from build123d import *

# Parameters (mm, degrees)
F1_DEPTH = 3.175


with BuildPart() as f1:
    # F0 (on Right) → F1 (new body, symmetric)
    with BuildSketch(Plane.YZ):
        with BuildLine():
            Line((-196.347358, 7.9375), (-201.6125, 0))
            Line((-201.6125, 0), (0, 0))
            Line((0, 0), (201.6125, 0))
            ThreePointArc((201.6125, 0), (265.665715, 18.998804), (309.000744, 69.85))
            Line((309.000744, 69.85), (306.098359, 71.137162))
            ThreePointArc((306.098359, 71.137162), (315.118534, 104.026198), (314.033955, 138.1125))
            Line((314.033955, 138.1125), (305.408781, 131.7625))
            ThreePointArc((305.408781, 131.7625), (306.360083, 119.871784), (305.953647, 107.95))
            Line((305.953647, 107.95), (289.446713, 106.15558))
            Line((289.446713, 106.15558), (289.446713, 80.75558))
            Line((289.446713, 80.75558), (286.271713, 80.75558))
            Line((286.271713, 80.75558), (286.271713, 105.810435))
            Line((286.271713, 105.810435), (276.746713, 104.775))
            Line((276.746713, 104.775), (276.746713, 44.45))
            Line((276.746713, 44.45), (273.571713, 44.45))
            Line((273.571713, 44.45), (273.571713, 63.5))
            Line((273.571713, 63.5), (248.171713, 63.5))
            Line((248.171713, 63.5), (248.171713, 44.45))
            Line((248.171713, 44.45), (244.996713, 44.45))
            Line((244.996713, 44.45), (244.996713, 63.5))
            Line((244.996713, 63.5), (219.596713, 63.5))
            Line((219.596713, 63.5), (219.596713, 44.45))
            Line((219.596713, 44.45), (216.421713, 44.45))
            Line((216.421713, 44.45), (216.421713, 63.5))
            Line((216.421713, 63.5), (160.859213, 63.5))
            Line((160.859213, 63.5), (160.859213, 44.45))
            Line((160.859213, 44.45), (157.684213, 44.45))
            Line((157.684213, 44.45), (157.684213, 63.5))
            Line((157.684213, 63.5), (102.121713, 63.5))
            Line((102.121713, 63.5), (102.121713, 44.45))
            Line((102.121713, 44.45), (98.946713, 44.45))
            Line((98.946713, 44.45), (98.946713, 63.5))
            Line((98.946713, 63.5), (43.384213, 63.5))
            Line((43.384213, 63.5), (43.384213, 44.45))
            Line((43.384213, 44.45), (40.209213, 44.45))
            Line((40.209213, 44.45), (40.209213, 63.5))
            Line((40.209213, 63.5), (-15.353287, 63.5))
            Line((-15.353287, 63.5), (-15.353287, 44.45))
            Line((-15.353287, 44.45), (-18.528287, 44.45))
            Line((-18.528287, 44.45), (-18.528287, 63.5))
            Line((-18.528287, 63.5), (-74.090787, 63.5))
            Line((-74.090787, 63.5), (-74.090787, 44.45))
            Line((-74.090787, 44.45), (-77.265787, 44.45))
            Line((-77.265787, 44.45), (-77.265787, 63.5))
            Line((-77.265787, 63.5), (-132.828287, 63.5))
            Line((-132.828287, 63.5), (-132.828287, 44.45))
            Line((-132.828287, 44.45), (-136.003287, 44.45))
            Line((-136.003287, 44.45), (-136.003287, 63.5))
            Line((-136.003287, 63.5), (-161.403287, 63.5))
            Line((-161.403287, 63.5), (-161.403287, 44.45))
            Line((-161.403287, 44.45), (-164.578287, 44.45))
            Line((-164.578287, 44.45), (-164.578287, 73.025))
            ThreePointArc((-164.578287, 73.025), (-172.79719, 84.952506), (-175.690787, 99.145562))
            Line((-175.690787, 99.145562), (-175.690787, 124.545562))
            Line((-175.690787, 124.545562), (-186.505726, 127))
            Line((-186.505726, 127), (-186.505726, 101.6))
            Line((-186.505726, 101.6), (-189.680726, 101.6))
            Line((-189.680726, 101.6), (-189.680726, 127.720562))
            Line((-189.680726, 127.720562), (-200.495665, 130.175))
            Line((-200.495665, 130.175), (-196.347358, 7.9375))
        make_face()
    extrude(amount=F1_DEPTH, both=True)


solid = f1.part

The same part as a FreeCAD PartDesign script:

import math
import FreeCAD as App
import Part
import Sketcher

V = App.Vector
Q = App.Units.Quantity

doc = App.newDocument("Part")
body = doc.addObject("PartDesign::Body", "Body")

# Sketch on YZ plane
sketch1 = body.newObject("Sketcher::SketchObject", "Sketch")
sketch1.AttachmentSupport = (doc.getObject("YZ_Plane"), [""])
sketch1.MapMode = "FlatFace"
sketch1.addGeometry([
    Part.LineSegment(V(-196.3, 7.9, 0), V(-201.6, 0, 0)),  # 0
    Part.LineSegment(V(-201.6, 0, 0), V(201.6, 0, 0)),  # 1
    Part.ArcOfCircle(Part.Circle(V(201.6, 117.5, 0), V(0, 0, 1), 117.5), math.radians(-90), math.radians(-24)),  # 2
    Part.LineSegment(V(309, 69.8, 0), V(306.1, 71.1, 0)),  # 3
    Part.ArcOfCircle(Part.Circle(V(201.6, 117.5, 0), V(0, 0, 1), 114.3), math.radians(-24), math.radians(10)),  # 4
    Part.LineSegment(V(314, 138.1, 0), V(305.4, 131.8, 0)),  # 5
    Part.ArcOfCircle(Part.Circle(V(201.6, 117.5, 0), V(0, 0, 1), 104.8), math.radians(-5.22), math.radians(7.84)),  # 6
    Part.LineSegment(V(306, 108, 0), V(289.4, 106.2, 0)),  # 7
    Part.LineSegment(V(289.4, 106.2, 0), V(289.4, 80.8, 0)),  # 8
    Part.LineSegment(V(289.4, 80.8, 0), V(286.3, 80.8, 0)),  # 9
    Part.LineSegment(V(286.3, 80.8, 0), V(286.3, 105.8, 0)),  # 10
    Part.LineSegment(V(286.3, 105.8, 0), V(276.7, 104.8, 0)),  # 11
    Part.LineSegment(V(276.7, 104.8, 0), V(276.7, 44.5, 0)),  # 12
    Part.LineSegment(V(276.7, 44.5, 0), V(273.6, 44.5, 0)),  # 13
    Part.LineSegment(V(273.6, 44.5, 0), V(273.6, 63.5, 0)),  # 14
    Part.LineSegment(V(273.6, 63.5, 0), V(248.2, 63.5, 0)),  # 15
    Part.LineSegment(V(248.2, 63.5, 0), V(248.2, 44.5, 0)),  # 16
    Part.LineSegment(V(248.2, 44.5, 0), V(245, 44.5, 0)),  # 17
    Part.LineSegment(V(245, 44.5, 0), V(245, 63.5, 0)),  # 18
    Part.LineSegment(V(245, 63.5, 0), V(219.6, 63.5, 0)),  # 19
    Part.LineSegment(V(219.6, 63.5, 0), V(219.6, 44.5, 0)),  # 20
    Part.LineSegment(V(219.6, 44.5, 0), V(216.4, 44.5, 0)),  # 21
    Part.LineSegment(V(216.4, 44.5, 0), V(216.4, 63.5, 0)),  # 22
    Part.LineSegment(V(216.4, 63.5, 0), V(160.9, 63.5, 0)),  # 23
    Part.LineSegment(V(160.9, 63.5, 0), V(160.9, 44.5, 0)),  # 24
    Part.LineSegment(V(160.9, 44.5, 0), V(157.7, 44.5, 0)),  # 25
    Part.LineSegment(V(157.7, 44.5, 0), V(157.7, 63.5, 0)),  # 26
    Part.LineSegment(V(157.7, 63.5, 0), V(102.1, 63.5, 0)),  # 27
    Part.LineSegment(V(102.1, 63.5, 0), V(102.1, 44.5, 0)),  # 28
    Part.LineSegment(V(102.1, 44.5, 0), V(98.9, 44.5, 0)),  # 29
    Part.LineSegment(V(98.9, 44.5, 0), V(98.9, 63.5, 0)),  # 30
    Part.LineSegment(V(98.9, 63.5, 0), V(43.4, 63.5, 0)),  # 31
    Part.LineSegment(V(43.4, 63.5, 0), V(43.4, 44.5, 0)),  # 32
    Part.LineSegment(V(43.4, 44.5, 0), V(40.2, 44.5, 0)),  # 33
    Part.LineSegment(V(40.2, 44.5, 0), V(40.2, 63.5, 0)),  # 34
    Part.LineSegment(V(40.2, 63.5, 0), V(-15.4, 63.5, 0)),  # 35
    Part.LineSegment(V(-15.4, 63.5, 0), V(-15.4, 44.5, 0)),  # 36
    Part.LineSegment(V(-15.4, 44.5, 0), V(-18.5, 44.5, 0)),  # 37
    Part.LineSegment(V(-18.5, 44.5, 0), V(-18.5, 63.5, 0)),  # 38
    Part.LineSegment(V(-18.5, 63.5, 0), V(-74.1, 63.5, 0)),  # 39
    Part.LineSegment(V(-74.1, 63.5, 0), V(-74.1, 44.5, 0)),  # 40
    Part.LineSegment(V(-74.1, 44.5, 0), V(-77.3, 44.5, 0)),  # 41
    Part.LineSegment(V(-77.3, 44.5, 0), V(-77.3, 63.5, 0)),  # 42
    Part.LineSegment(V(-77.3, 63.5, 0), V(-132.8, 63.5, 0)),  # 43
    Part.LineSegment(V(-132.8, 63.5, 0), V(-132.8, 44.5, 0)),  # 44
    Part.LineSegment(V(-132.8, 44.5, 0), V(-136, 44.5, 0)),  # 45
    Part.LineSegment(V(-136, 44.5, 0), V(-136, 63.5, 0)),  # 46
    Part.LineSegment(V(-136, 63.5, 0), V(-161.4, 63.5, 0)),  # 47
    Part.LineSegment(V(-161.4, 63.5, 0), V(-161.4, 44.5, 0)),  # 48
    Part.LineSegment(V(-161.4, 44.5, 0), V(-164.6, 44.5, 0)),  # 49
    Part.LineSegment(V(-164.6, 44.5, 0), V(-164.6, 73, 0)),  # 50
    Part.ArcOfCircle(Part.Circle(V(-139.4, 99.1, 0), V(0, 0, 1), 36.3), math.radians(-180), math.radians(-134)),  # 51
    Part.LineSegment(V(-175.7, 99.1, 0), V(-175.7, 124.5, 0)),  # 52
    Part.LineSegment(V(-175.7, 124.5, 0), V(-186.5, 127, 0)),  # 53
    Part.LineSegment(V(-186.5, 127, 0), V(-186.5, 101.6, 0)),  # 54
    Part.LineSegment(V(-186.5, 101.6, 0), V(-189.7, 101.6, 0)),  # 55
    Part.LineSegment(V(-189.7, 101.6, 0), V(-189.7, 127.7, 0)),  # 56
    Part.LineSegment(V(-189.7, 127.7, 0), V(-200.5, 130.2, 0)),  # 57
    Part.LineSegment(V(-200.5, 130.2, 0), V(-196.3, 7.9, 0)),  # 58
], False)
sketch1.addConstraint([
    Sketcher.Constraint("Coincident", 0, 2, 1, 1),
    Sketcher.Constraint("Tangent", 1, 2, 2, 1),
    Sketcher.Constraint("Coincident", 2, 2, 3, 1),
    Sketcher.Constraint("Coincident", 3, 2, 4, 1),
    Sketcher.Constraint("Coincident", 4, 2, 5, 1),
    Sketcher.Constraint("Coincident", 5, 2, 6, 2),
    Sketcher.Constraint("Coincident", 6, 1, 7, 1),
    Sketcher.Constraint("Coincident", 7, 2, 8, 1),
    Sketcher.Constraint("Coincident", 8, 2, 9, 1),
    Sketcher.Constraint("Coincident", 9, 2, 10, 1),
    Sketcher.Constraint("Coincident", 10, 2, 11, 1),
    Sketcher.Constraint("Coincident", 11, 2, 12, 1),
    Sketcher.Constraint("Coincident", 12, 2, 13, 1),
    Sketcher.Constraint("Coincident", 13, 2, 14, 1),
    Sketcher.Constraint("Coincident", 14, 2, 15, 1),
    Sketcher.Constraint("Coincident", 15, 2, 16, 1),
    Sketcher.Constraint("Coincident", 16, 2, 17, 1),
    Sketcher.Constraint("Coincident", 17, 2, 18, 1),
    Sketcher.Constraint("Coincident", 18, 2, 19, 1),
    Sketcher.Constraint("Coincident", 19, 2, 20, 1),
    Sketcher.Constraint("Coincident", 20, 2, 21, 1),
    Sketcher.Constraint("Coincident", 21, 2, 22, 1),
    Sketcher.Constraint("Coincident", 22, 2, 23, 1),
    Sketcher.Constraint("Coincident", 23, 2, 24, 1),
    Sketcher.Constraint("Coincident", 24, 2, 25, 1),
    Sketcher.Constraint("Coincident", 25, 2, 26, 1),
    Sketcher.Constraint("Coincident", 26, 2, 27, 1),
    Sketcher.Constraint("Coincident", 27, 2, 28, 1),
    Sketcher.Constraint("Coincident", 28, 2, 29, 1),
    Sketcher.Constraint("Coincident", 29, 2, 30, 1),
    Sketcher.Constraint("Coincident", 30, 2, 31, 1),
    Sketcher.Constraint("Coincident", 31, 2, 32, 1),
    Sketcher.Constraint("Coincident", 32, 2, 33, 1),
    Sketcher.Constraint("Coincident", 33, 2, 34, 1),
    Sketcher.Constraint("Coincident", 34, 2, 35, 1),
    Sketcher.Constraint("Coincident", 35, 2, 36, 1),
    Sketcher.Constraint("Coincident", 36, 2, 37, 1),
    Sketcher.Constraint("Coincident", 37, 2, 38, 1),
    Sketcher.Constraint("Coincident", 38, 2, 39, 1),
    Sketcher.Constraint("Coincident", 39, 2, 40, 1),
    Sketcher.Constraint("Coincident", 40, 2, 41, 1),
    Sketcher.Constraint("Coincident", 41, 2, 42, 1),
    Sketcher.Constraint("Coincident", 42, 2, 43, 1),
    Sketcher.Constraint("Coincident", 43, 2, 44, 1),
    Sketcher.Constraint("Coincident", 44, 2, 45, 1),
    Sketcher.Constraint("Coincident", 45, 2, 46, 1),
    Sketcher.Constraint("Coincident", 46, 2, 47, 1),
    Sketcher.Constraint("Coincident", 47, 2, 48, 1),
    Sketcher.Constraint("Coincident", 48, 2, 49, 1),
    Sketcher.Constraint("Coincident", 49, 2, 50, 1),
    Sketcher.Constraint("Coincident", 50, 2, 51, 2),
    Sketcher.Constraint("Tangent", 51, 1, 52, 1),
    Sketcher.Constraint("Coincident", 52, 2, 53, 1),
    Sketcher.Constraint("Coincident", 53, 2, 54, 1),
    Sketcher.Constraint("Coincident", 54, 2, 55, 1),
    Sketcher.Constraint("Coincident", 55, 2, 56, 1),
    Sketcher.Constraint("Coincident", 56, 2, 57, 1),
    Sketcher.Constraint("Coincident", 57, 2, 58, 1),
    Sketcher.Constraint("Coincident", 58, 2, 0, 1),
    Sketcher.Constraint("Horizontal", 1),
    Sketcher.Constraint("Vertical", 8),
    Sketcher.Constraint("Horizontal", 9),
    Sketcher.Constraint("Vertical", 10),
    Sketcher.Constraint("Vertical", 12),
    Sketcher.Constraint("Horizontal", 13),
    Sketcher.Constraint("Vertical", 14),
    Sketcher.Constraint("Horizontal", 15),
    Sketcher.Constraint("Vertical", 16),
    Sketcher.Constraint("Horizontal", 17),
    Sketcher.Constraint("Vertical", 18),
    Sketcher.Constraint("Horizontal", 19),
    Sketcher.Constraint("Vertical", 20),
    Sketcher.Constraint("Horizontal", 21),
    Sketcher.Constraint("Vertical", 22),
    Sketcher.Constraint("Horizontal", 23),
    Sketcher.Constraint("Vertical", 24),
    Sketcher.Constraint("Horizontal", 25),
    Sketcher.Constraint("Vertical", 26),
    Sketcher.Constraint("Horizontal", 27),
    Sketcher.Constraint("Vertical", 28),
    Sketcher.Constraint("Horizontal", 29),
    Sketcher.Constraint("Vertical", 30),
    Sketcher.Constraint("Horizontal", 31),
    Sketcher.Constraint("Vertical", 32),
    Sketcher.Constraint("Horizontal", 33),
    Sketcher.Constraint("Vertical", 34),
    Sketcher.Constraint("Horizontal", 35),
    Sketcher.Constraint("Vertical", 36),
    Sketcher.Constraint("Horizontal", 37),
    Sketcher.Constraint("Vertical", 38),
    Sketcher.Constraint("Horizontal", 39),
    Sketcher.Constraint("Vertical", 40),
    Sketcher.Constraint("Horizontal", 41),
    Sketcher.Constraint("Vertical", 42),
    Sketcher.Constraint("Horizontal", 43),
    Sketcher.Constraint("Vertical", 44),
    Sketcher.Constraint("Horizontal", 45),
    Sketcher.Constraint("Vertical", 46),
    Sketcher.Constraint("Horizontal", 47),
    Sketcher.Constraint("Vertical", 48),
    Sketcher.Constraint("Horizontal", 49),
    Sketcher.Constraint("Vertical", 50),
    Sketcher.Constraint("Vertical", 52),
    Sketcher.Constraint("Vertical", 54),
    Sketcher.Constraint("Horizontal", 55),
    Sketcher.Constraint("Vertical", 56),
    Sketcher.Constraint("Coincident", 4, 3, 2, 3),
    Sketcher.Constraint("Symmetric", 0, 2, 1, 2, -1, 1),
    Sketcher.Constraint("Parallel", 7, 11),
    Sketcher.Constraint("Parallel", 53, 57),
    Sketcher.Constraint("Horizontal", 2, 3, 6, 3),
    Sketcher.Constraint("Horizontal", 13, 2, 16, 2),
    Sketcher.Constraint("Horizontal", 15, 2, 18, 2),
    Sketcher.Constraint("Horizontal", 17, 2, 20, 2),
    Sketcher.Constraint("Horizontal", 19, 2, 22, 2),
    Sketcher.Constraint("Horizontal", 21, 2, 24, 2),
    Sketcher.Constraint("Horizontal", 23, 2, 26, 2),
    Sketcher.Constraint("Horizontal", 25, 2, 28, 2),
    Sketcher.Constraint("Horizontal", 27, 2, 30, 2),
    Sketcher.Constraint("Horizontal", 29, 2, 32, 2),
    Sketcher.Constraint("Horizontal", 31, 2, 34, 2),
    Sketcher.Constraint("Horizontal", 33, 2, 36, 2),
    Sketcher.Constraint("Horizontal", 35, 2, 38, 2),
    Sketcher.Constraint("Horizontal", 37, 2, 40, 2),
    Sketcher.Constraint("Horizontal", 39, 2, 42, 2),
    Sketcher.Constraint("Horizontal", 41, 2, 44, 2),
    Sketcher.Constraint("Horizontal", 43, 2, 46, 2),
    Sketcher.Constraint("Horizontal", 45, 2, 48, 2),
    Sketcher.Constraint("Equal", 9, 13),
    Sketcher.Constraint("Equal", 13, 17),
    Sketcher.Constraint("Equal", 15, 19),
    Sketcher.Constraint("Equal", 17, 21),
    Sketcher.Constraint("Equal", 21, 25),
    Sketcher.Constraint("Equal", 23, 27),
    Sketcher.Constraint("Equal", 25, 29),
    Sketcher.Constraint("Equal", 27, 31),
    Sketcher.Constraint("Equal", 29, 33),
    Sketcher.Constraint("Equal", 31, 35),
    Sketcher.Constraint("Equal", 33, 37),
    Sketcher.Constraint("Equal", 35, 39),
    Sketcher.Constraint("Equal", 37, 41),
    Sketcher.Constraint("Equal", 39, 43),
    Sketcher.Constraint("Equal", 41, 45),
    Sketcher.Constraint("Equal", 19, 47),
    Sketcher.Constraint("Equal", 45, 49),
    Sketcher.Constraint("Equal", 49, 55),
    Sketcher.Constraint("Equal", 47, 8),
    Sketcher.Constraint("Equal", 8, 52),
    Sketcher.Constraint("Equal", 52, 54),
    Sketcher.Constraint("Equal", 53, 57),
    Sketcher.Constraint("DistanceX", 15, 2, 15, 1, Q("1 in")),
    Sketcher.Constraint("DistanceY", -1, 1, 53, 2, Q("5 in")),
    Sketcher.Constraint("Radius", 2, Q("4.6250001 in")),
    Sketcher.Constraint("DistanceY", 14, 1, 14, 2, Q("0.75 in")),
    Sketcher.Constraint("DistanceY", -1, 1, 14, 2, Q("2.5 in")),
    Sketcher.Constraint("DistanceX", 1, 1, 1, 2, Q("15.875 in")),
    Sketcher.Constraint("DistanceX", 9, 2, 9, 1, Q("0.125 in")),
    Sketcher.Constraint("DistanceX", 23, 2, 23, 1, Q("2.1875 in")),
    Sketcher.Constraint("DistanceY", 12, 2, 12, 1, Q("2.375 in")),
    Sketcher.Constraint("DistanceY", 50, 1, 50, 2, Q("1.125 in")),
    Sketcher.Constraint("DistanceY", -1, 1, 2, 2, Q("2.75 in")),
    Sketcher.Constraint("DistanceY", -1, 1, 6, 1, Q("4.25 in")),
    Sketcher.Constraint("Distance", 0, Q("0.375 in")),
    Sketcher.Constraint("Distance", 3, Q("0.125 in")),
    Sketcher.Constraint("DistanceY", -1, 1, 4, 2, Q("5.4375 in")),
    Sketcher.Constraint("DistanceY", -1, 1, 5, 2, Q("5.1875 in")),
    Sketcher.Constraint("DistanceY", -1, 1, 57, 2, Q("5.125 in")),
    Sketcher.Constraint("DistanceY", -1, 1, 58, 2, Q("0.3125 in")),
    Sketcher.Constraint("Radius", 6, Q("104.774909 mm")),
    Sketcher.Constraint("Radius", 51, Q("36.255186 mm")),
    Sketcher.Constraint("DistanceX", 51, 3, -1, 1, Q("139.435601 mm")),
    Sketcher.Constraint("Distance", 5, Q("10.710561 mm")),
    Sketcher.Constraint("Distance", 7, Q("16.604181 mm")),
    Sketcher.Constraint("Distance", 53, Q("11.089958 mm")),
    Sketcher.Constraint("DistanceY", 10, 1, 10, 2, Q("25.054855 mm")),
    Sketcher.Constraint("DistanceY", 56, 1, 56, 2, Q("26.120562 mm")),
    Sketcher.Constraint("DistanceX", -1, 1, 3, 2, Q("306.098359 mm")),
])
pad1 = body.newObject("PartDesign::Pad", "Pad")
pad1.Profile = sketch1
pad1.Length = Q("0.25 in")
pad1.Midplane = True

doc.recompute()
